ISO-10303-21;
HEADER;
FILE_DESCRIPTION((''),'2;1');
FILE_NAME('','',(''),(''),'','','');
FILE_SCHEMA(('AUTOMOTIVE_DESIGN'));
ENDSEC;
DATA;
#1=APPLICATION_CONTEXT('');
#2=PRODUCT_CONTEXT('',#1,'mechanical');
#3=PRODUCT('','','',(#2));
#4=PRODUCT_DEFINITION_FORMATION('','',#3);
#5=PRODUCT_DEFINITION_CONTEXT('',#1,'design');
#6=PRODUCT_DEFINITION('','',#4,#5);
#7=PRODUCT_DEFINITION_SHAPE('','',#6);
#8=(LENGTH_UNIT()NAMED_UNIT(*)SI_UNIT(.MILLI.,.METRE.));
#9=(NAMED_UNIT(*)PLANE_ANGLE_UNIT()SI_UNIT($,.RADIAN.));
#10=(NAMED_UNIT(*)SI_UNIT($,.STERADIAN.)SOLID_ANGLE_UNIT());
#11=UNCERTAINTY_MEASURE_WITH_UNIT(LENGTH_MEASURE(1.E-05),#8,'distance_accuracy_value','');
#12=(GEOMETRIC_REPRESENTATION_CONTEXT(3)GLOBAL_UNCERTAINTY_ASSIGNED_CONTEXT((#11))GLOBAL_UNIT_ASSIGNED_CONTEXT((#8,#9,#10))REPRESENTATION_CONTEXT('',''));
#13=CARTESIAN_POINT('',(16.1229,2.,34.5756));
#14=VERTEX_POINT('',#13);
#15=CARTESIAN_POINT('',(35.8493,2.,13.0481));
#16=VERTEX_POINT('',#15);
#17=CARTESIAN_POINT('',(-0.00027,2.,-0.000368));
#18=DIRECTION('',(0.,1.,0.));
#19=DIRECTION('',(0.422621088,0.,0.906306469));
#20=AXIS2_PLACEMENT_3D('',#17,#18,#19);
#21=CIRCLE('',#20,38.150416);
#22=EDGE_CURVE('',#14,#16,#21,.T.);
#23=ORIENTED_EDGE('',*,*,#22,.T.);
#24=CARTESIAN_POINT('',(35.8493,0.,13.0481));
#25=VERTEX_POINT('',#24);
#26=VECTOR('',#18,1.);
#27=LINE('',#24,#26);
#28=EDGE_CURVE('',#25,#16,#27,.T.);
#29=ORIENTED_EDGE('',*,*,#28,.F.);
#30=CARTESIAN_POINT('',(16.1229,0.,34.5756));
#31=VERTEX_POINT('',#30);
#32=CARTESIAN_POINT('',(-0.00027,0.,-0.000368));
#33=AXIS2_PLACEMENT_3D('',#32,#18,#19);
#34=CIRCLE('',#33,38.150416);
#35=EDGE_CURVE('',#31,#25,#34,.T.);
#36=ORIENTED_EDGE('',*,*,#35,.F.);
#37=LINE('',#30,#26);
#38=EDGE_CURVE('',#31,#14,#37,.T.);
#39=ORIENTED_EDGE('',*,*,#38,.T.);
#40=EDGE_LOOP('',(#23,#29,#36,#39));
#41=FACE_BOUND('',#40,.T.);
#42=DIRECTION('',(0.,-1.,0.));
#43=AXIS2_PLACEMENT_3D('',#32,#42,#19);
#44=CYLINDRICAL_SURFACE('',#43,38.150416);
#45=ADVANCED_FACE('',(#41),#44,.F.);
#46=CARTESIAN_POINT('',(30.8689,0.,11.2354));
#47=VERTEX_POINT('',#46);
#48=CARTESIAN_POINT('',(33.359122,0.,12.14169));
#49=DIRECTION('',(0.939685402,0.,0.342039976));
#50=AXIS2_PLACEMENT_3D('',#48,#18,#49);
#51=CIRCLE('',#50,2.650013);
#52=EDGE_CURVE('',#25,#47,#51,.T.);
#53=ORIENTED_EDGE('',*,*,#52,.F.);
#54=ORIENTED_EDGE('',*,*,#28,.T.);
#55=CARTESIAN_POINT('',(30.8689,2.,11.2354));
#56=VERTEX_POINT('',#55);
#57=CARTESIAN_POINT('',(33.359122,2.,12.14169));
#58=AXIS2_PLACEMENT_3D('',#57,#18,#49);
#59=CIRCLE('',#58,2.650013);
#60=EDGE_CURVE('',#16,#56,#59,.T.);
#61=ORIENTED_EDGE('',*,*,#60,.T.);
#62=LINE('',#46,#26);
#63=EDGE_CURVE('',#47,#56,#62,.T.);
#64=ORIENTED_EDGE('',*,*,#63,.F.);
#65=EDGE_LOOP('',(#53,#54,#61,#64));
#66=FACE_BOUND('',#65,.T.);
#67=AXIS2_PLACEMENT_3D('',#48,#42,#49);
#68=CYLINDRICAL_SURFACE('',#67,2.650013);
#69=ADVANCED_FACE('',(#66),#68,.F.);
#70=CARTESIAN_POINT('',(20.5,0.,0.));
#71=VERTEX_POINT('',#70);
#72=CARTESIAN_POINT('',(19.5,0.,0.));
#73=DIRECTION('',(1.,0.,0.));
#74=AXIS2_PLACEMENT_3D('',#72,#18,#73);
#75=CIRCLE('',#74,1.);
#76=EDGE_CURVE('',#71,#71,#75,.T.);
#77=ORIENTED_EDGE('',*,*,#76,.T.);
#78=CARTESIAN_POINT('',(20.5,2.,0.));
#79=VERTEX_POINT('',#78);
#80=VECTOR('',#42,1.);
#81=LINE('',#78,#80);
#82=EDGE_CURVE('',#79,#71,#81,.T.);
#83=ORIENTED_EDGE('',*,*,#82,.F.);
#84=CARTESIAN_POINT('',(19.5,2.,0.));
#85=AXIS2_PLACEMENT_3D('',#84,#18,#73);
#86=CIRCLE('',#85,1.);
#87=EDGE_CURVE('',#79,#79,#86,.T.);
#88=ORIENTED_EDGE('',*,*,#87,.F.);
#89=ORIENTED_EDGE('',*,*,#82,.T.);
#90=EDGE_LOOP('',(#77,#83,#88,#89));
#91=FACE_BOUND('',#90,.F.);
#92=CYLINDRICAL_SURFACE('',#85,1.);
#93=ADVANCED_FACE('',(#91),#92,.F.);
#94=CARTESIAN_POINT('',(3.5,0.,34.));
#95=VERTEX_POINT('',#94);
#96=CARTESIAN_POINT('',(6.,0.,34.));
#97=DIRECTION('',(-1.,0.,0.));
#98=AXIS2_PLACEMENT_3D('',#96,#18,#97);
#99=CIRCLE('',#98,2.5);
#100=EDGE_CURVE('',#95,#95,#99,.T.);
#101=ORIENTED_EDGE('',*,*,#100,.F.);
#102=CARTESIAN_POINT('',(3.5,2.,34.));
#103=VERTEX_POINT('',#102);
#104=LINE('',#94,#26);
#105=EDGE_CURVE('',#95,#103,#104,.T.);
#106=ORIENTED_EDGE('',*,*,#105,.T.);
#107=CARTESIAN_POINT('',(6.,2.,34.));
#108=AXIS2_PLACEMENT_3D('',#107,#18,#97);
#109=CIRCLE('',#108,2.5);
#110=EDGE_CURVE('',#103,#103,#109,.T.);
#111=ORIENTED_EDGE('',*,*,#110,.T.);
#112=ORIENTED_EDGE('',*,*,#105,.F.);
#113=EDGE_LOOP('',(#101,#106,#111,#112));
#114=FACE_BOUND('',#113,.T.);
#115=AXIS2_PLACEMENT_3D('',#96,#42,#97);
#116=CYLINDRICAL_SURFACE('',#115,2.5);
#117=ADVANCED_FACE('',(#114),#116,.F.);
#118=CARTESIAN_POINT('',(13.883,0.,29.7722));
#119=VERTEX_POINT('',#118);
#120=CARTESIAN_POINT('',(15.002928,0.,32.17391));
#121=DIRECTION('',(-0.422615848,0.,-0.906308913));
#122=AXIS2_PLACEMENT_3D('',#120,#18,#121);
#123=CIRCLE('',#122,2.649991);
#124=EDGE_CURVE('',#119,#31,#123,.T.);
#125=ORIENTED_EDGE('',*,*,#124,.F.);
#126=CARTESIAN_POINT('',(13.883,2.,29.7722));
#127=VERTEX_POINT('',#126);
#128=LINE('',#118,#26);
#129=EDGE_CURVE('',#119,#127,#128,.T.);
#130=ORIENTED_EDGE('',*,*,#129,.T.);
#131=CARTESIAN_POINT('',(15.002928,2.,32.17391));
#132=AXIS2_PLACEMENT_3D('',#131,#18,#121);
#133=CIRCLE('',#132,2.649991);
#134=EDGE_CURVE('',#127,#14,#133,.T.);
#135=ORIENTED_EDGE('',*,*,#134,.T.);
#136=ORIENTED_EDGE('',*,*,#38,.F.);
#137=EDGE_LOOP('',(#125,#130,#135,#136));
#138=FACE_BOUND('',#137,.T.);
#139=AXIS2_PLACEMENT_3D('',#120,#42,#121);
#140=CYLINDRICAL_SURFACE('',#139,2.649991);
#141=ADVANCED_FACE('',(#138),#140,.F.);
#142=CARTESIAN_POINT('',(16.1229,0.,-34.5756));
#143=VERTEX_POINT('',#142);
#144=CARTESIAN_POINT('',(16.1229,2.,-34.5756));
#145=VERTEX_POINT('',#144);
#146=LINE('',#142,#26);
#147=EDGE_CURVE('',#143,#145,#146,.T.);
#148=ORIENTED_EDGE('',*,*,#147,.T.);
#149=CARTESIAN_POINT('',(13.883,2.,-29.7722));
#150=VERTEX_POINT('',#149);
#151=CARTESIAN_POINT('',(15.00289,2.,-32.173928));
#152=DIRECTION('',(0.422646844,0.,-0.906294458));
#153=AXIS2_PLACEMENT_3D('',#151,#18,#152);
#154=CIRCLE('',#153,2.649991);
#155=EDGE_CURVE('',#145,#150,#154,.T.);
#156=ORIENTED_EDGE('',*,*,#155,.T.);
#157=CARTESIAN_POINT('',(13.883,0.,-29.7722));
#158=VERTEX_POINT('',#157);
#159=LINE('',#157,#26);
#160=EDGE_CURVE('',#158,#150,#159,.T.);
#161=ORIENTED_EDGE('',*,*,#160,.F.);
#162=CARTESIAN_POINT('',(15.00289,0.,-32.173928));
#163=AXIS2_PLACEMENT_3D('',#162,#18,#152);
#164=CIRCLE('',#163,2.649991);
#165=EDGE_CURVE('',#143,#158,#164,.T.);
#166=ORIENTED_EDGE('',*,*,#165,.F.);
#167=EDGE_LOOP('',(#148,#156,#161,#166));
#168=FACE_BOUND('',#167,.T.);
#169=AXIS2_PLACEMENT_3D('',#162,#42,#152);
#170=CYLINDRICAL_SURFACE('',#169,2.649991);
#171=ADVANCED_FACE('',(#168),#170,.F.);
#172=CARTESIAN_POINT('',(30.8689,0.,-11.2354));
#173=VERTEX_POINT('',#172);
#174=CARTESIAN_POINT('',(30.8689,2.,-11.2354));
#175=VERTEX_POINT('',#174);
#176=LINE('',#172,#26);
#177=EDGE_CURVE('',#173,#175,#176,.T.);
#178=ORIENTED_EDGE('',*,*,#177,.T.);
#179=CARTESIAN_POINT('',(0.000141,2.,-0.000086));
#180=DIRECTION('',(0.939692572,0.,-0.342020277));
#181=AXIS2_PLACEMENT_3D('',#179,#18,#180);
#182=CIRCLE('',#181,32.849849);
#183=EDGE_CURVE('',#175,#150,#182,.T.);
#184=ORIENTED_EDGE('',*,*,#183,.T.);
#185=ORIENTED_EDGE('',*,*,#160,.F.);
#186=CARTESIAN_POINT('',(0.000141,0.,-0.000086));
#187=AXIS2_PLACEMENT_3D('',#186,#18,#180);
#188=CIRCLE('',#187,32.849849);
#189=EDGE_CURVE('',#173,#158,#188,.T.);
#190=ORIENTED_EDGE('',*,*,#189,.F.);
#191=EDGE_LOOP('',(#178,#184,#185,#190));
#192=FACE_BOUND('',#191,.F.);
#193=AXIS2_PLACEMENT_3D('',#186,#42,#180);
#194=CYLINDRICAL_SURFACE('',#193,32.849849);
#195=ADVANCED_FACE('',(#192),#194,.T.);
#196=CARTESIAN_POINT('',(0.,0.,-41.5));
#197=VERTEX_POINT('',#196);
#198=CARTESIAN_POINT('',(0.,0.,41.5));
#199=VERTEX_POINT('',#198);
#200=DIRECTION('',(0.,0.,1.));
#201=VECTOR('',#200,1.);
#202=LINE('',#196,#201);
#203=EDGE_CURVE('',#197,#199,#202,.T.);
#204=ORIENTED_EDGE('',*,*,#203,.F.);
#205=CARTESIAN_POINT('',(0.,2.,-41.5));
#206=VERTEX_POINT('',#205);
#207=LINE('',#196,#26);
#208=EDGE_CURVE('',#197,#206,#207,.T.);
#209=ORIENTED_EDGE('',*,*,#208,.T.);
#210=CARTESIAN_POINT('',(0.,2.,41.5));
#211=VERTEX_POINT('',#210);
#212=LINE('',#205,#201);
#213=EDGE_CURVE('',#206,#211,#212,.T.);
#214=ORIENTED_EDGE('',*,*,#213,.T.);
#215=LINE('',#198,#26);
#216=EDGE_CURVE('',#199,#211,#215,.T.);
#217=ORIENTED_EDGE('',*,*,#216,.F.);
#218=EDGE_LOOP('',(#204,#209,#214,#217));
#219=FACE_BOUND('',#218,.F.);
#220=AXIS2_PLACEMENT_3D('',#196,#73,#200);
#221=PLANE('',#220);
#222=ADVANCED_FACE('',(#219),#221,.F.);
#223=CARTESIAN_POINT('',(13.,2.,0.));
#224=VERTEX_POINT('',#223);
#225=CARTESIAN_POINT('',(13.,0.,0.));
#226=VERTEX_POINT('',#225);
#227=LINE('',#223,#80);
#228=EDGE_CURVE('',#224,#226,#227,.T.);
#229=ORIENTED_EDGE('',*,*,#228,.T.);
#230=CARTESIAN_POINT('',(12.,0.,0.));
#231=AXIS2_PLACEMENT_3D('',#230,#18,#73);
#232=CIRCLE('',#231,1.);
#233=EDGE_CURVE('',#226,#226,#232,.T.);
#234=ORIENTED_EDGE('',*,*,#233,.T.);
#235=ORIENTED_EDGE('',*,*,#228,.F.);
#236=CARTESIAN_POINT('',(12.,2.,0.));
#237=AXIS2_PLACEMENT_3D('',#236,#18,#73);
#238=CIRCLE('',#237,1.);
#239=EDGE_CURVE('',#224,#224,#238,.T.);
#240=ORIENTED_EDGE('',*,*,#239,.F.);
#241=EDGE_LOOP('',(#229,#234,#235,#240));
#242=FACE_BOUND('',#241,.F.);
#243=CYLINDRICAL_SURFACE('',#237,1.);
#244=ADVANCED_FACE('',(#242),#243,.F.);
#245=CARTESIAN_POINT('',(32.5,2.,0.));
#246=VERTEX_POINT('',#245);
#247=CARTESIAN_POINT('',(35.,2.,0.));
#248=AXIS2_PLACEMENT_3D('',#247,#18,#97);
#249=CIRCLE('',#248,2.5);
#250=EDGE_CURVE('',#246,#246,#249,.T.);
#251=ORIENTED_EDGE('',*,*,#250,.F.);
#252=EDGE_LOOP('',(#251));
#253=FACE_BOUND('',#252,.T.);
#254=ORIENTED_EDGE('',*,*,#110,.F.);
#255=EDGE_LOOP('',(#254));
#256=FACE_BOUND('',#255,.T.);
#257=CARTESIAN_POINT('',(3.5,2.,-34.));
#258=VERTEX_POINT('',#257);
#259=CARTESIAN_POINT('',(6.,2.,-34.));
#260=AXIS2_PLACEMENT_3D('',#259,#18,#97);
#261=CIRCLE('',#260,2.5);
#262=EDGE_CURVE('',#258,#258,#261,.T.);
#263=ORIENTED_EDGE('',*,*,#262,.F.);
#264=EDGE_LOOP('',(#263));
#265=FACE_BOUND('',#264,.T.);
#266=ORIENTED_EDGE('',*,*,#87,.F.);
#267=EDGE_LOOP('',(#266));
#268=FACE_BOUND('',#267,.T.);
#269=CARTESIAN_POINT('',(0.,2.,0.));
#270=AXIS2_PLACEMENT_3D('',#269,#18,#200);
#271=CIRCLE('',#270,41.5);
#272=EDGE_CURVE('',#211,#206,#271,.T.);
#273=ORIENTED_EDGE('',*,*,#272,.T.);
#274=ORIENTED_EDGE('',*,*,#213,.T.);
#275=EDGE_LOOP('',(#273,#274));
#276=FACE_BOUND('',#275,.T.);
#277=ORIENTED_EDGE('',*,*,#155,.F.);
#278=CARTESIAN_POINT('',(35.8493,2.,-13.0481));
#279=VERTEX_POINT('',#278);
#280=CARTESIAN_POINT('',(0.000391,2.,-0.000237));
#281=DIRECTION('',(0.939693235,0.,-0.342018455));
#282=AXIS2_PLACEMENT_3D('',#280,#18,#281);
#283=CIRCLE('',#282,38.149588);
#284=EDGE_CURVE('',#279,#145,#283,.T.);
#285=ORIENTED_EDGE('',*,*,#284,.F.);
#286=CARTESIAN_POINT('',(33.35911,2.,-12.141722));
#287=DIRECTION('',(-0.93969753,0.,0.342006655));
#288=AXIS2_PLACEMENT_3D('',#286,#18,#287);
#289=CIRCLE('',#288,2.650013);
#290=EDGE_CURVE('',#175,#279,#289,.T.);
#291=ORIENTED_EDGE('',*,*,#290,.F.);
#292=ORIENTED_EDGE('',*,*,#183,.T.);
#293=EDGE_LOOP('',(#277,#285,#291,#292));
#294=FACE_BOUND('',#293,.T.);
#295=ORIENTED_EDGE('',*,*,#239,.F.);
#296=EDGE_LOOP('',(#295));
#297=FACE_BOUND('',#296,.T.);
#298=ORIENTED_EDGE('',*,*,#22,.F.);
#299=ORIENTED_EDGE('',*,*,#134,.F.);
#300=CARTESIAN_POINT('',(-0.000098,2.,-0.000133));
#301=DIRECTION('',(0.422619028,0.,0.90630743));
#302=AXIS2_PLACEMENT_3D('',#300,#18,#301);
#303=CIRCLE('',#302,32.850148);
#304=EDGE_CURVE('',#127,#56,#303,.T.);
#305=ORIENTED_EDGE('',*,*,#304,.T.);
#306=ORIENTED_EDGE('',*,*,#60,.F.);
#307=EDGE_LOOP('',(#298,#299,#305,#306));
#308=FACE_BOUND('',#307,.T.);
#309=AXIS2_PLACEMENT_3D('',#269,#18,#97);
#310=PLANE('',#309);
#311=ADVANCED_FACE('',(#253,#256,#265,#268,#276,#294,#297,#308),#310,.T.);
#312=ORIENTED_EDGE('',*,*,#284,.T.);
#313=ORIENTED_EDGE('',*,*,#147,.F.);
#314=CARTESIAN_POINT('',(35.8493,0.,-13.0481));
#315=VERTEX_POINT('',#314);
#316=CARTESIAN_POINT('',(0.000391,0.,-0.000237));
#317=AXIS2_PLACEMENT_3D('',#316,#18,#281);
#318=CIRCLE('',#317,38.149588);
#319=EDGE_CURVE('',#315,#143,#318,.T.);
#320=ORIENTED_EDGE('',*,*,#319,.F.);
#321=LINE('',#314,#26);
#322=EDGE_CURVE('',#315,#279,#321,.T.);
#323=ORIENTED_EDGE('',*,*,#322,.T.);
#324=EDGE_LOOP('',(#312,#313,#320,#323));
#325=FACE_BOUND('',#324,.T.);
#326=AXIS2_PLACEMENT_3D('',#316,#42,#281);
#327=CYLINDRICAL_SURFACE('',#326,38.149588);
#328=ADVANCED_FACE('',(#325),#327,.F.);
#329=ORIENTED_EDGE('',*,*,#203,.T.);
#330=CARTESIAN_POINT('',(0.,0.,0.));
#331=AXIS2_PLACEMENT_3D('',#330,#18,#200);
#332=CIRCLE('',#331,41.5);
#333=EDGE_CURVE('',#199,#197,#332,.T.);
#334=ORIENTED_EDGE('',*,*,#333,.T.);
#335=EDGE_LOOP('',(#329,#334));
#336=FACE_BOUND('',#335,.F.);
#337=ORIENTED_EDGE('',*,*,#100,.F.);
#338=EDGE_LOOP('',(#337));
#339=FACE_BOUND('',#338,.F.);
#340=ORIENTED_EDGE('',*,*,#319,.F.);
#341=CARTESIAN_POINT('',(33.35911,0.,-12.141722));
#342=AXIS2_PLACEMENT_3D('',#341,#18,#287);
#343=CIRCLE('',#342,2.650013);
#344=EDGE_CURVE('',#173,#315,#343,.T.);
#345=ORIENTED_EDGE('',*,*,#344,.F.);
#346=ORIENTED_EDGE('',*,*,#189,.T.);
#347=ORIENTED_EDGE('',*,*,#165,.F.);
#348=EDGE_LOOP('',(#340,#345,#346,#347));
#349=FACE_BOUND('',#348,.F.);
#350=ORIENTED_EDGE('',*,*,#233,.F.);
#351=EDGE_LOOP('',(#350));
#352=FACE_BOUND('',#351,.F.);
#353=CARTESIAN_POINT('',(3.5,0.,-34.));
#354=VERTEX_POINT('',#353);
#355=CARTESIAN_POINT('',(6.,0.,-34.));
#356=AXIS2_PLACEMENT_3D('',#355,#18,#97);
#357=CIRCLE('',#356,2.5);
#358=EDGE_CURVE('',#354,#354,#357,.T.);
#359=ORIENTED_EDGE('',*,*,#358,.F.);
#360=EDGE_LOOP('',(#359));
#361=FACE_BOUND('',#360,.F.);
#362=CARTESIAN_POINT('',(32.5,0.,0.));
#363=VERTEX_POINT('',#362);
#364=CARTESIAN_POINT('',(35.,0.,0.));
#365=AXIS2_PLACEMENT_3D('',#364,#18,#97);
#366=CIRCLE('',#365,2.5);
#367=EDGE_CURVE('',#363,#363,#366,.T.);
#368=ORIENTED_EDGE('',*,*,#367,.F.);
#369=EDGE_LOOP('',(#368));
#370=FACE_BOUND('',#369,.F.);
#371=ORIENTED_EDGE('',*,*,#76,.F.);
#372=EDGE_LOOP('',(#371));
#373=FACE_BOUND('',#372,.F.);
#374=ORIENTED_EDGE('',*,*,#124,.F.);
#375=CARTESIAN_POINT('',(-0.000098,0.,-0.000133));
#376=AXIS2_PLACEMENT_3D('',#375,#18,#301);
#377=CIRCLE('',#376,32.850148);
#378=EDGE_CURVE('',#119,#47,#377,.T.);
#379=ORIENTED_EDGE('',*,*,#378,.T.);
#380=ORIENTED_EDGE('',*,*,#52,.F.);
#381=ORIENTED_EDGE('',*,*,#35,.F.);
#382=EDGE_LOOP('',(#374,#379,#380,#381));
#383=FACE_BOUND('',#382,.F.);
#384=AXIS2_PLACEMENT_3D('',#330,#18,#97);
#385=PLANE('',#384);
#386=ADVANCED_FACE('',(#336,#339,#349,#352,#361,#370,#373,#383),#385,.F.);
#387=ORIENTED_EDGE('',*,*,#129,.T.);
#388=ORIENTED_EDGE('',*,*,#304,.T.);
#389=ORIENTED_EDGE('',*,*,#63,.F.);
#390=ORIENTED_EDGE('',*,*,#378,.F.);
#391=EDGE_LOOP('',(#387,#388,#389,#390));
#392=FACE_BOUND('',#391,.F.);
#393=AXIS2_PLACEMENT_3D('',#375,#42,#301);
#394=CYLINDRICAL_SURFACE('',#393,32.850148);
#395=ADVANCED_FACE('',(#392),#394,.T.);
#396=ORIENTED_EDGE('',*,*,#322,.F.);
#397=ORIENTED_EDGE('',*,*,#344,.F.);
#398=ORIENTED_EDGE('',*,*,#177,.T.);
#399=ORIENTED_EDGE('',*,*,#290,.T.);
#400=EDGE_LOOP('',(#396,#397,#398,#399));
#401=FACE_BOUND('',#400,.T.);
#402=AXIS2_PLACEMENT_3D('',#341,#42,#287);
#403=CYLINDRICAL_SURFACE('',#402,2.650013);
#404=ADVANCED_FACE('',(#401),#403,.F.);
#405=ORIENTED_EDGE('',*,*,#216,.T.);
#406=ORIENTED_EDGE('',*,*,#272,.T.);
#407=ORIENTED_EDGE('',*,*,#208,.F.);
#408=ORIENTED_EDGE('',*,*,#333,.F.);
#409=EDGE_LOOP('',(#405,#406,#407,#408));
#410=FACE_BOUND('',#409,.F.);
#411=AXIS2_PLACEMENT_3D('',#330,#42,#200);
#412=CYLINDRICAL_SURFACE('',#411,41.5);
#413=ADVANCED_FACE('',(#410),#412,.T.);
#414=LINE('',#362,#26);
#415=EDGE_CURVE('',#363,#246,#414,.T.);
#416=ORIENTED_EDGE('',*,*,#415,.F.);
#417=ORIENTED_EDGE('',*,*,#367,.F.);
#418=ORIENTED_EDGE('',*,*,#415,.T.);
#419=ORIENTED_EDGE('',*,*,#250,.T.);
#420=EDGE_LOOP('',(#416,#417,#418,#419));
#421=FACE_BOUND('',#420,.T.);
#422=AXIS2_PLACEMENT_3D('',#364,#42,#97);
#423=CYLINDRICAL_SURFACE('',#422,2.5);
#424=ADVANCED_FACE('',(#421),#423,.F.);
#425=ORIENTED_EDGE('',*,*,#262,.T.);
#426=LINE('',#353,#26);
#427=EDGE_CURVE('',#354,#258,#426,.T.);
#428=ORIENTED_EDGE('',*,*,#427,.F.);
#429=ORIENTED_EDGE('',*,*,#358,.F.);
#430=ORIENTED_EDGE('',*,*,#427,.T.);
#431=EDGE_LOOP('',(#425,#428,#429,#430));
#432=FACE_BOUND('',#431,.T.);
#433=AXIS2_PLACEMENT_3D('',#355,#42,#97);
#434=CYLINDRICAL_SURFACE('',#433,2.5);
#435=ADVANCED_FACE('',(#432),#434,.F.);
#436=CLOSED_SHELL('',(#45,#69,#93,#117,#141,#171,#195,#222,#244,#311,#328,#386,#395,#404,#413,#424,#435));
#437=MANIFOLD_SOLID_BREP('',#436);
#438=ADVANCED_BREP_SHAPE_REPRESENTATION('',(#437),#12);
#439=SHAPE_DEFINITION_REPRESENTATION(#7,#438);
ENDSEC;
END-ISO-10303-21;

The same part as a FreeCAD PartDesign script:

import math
import FreeCAD as App
import Part
import Sketcher

doc = App.newDocument("Part")
body = doc.addObject("PartDesign::Body", "Body")

sketch1 = body.newObject("Sketcher::SketchObject", "Sketch")
sketch1.AttachmentSupport = (doc.getObject("XZ_Plane"), [""])
sketch1.MapMode = "FlatFace"
sketch1.addGeometry(Part.ArcOfCircle(Part.Circle(App.Vector(0, 0, 0), App.Vector(0, 0, 1), 41.5), math.radians(-90), math.radians(90)), False)
sketch1.addGeometry(Part.LineSegment(App.Vector(0, -41.5, 0), App.Vector(0, 41.5, 0)), False)
sketch1.addGeometry(Part.ArcOfCircle(Part.Circle(App.Vector(0, 0, 0), App.Vector(0, 0, 1), 38.149967), math.radians(-64.999955), math.radians(-20.000031)), False)
sketch1.addGeometry(Part.ArcOfCircle(Part.Circle(App.Vector(33.3591, -12.1417, 0), App.Vector(0, 0, 1), 2.649995), math.radians(-20.00084), math.radians(160.001192)), False)
sketch1.addGeometry(Part.ArcOfCircle(Part.Circle(App.Vector(0, 0, 0), App.Vector(0, 0, 1), 32.849986), math.radians(-65.000008), math.radians(-20.000064)), False)
sketch1.addGeometry(Part.ArcOfCircle(Part.Circle(App.Vector(15.0029, -32.1739, 0), App.Vector(0, 0, 1), 2.650012), math.radians(114.999391), math.radians(295.00135)), False)
sketch1.addGeometry(Part.Circle(App.Vector(6, -34, 0), App.Vector(0, 0, 1), 2.5), False)
sketch1.addGeometry(Part.Circle(App.Vector(35, 0, 0), App.Vector(0, 0, 1), 2.5), False)
sketch1.addGeometry(Part.ArcOfCircle(Part.Circle(App.Vector(0, 0, 0), App.Vector(0, 0, 1), 38.150036), math.radians(20.000031), math.radians(64.999955)), False)
sketch1.addGeometry(Part.ArcOfCircle(Part.Circle(App.Vector(15.0029, 32.1739, 0), App.Vector(0, 0, 1), 2.64997), math.radians(64.99865), math.radians(245.000609)), False)
sketch1.addGeometry(Part.ArcOfCircle(Part.Circle(App.Vector(0, 0, 0), App.Vector(0, 0, 1), 32.850011), math.radians(20.000064), math.radians(65.000008)), False)
sketch1.addGeometry(Part.ArcOfCircle(Part.Circle(App.Vector(33.3591, 12.1417, 0), App.Vector(0, 0, 1), 2.65003), math.radians(-160.001192), math.radians(20.00084)), False)
sketch1.addGeometry(Part.Circle(App.Vector(6, 34, 0), App.Vector(0, 0, 1), 2.5), False)
sketch1.addConstraint(Sketcher.Constraint("Coincident", 0, 1, 1, 1))
sketch1.addConstraint(Sketcher.Constraint("Coincident", 1, 2, 0, 2))
sketch1.addConstraint(Sketcher.Constraint("Tangent", 2, 2, 3, 1))
sketch1.addConstraint(Sketcher.Constraint("Tangent", 3, 2, 4, 2))
sketch1.addConstraint(Sketcher.Constraint("Tangent", 4, 1, 5, 1))
sketch1.addConstraint(Sketcher.Constraint("Tangent", 5, 2, 2, 1))
sketch1.addConstraint(Sketcher.Constraint("Tangent", 8, 2, 9, 1))
sketch1.addConstraint(Sketcher.Constraint("Tangent", 9, 2, 10, 2))
sketch1.addConstraint(Sketcher.Constraint("Tangent", 10, 1, 11, 1))
sketch1.addConstraint(Sketcher.Constraint("Tangent", 11, 2, 8, 1))
sketch1.addConstraint(Sketcher.Constraint("Vertical", 1))
sketch1.addConstraint(Sketcher.Constraint("Coincident", 0, 3, -1, 1))
sketch1.addConstraint(Sketcher.Constraint("Coincident", 2, 3, -1, 1))
sketch1.addConstraint(Sketcher.Constraint("Coincident", 4, 3, -1, 1))
sketch1.addConstraint(Sketcher.Constraint("Coincident", 8, 3, -1, 1))
sketch1.addConstraint(Sketcher.Constraint("Coincident", 10, 3, -1, 1))
sketch1.addConstraint(Sketcher.Constraint("Equal", 6, 7))
sketch1.addConstraint(Sketcher.Constraint("Equal", 2, 8))
sketch1.addConstraint(Sketcher.Constraint("Equal", 5, 9))
sketch1.addConstraint(Sketcher.Constraint("Equal", 7, 12))
sketch1.addConstraint(Sketcher.Constraint("Symmetric", 6, 3, 12, 3, -1))
sketch1.addConstraint(Sketcher.Constraint("PointOnObject", 7, 3, -1))
sketch1.addConstraint(Sketcher.Constraint("PointOnObject", 0, 1, -2))
sketch1.addConstraint(Sketcher.Constraint("Vertical", 5, 3, 9, 3))
sketch1.addConstraint(Sketcher.Constraint("Vertical", 3, 3, 11, 3))
sketch1.addConstraint(Sketcher.Constraint("Diameter", 6, 5.0))
sketch1.addConstraint(Sketcher.Constraint("Radius", 0, 41.5))
sketch1.addConstraint(Sketcher.Constraint("Radius", 3, 2.65))
sketch1.addConstraint(Sketcher.Constraint("DistanceX", -1, 1, 6, 3, 6.0))
sketch1.addConstraint(Sketcher.Constraint("DistanceY", 6, 3, -1, 1, 34.0))
sketch1.addConstraint(Sketcher.Constraint("DistanceX", -1, 1, 7, 3, 35.0))
sketch1.addConstraint(Sketcher.Constraint("Radius", 2, 38.15))
sketch1.addConstraint(Sketcher.Constraint("DistanceX", 5, 3, 5, 2, 1.12))
sketch1.addConstraint(Sketcher.Constraint("DistanceX", -1, 1, 3, 3, 33.359))
pad1 = body.newObject("PartDesign::Pad", "Pad")
pad1.Profile = sketch1
pad1.Length = 2
pad1.Reversed = True

sketch2 = body.newObject("Sketcher::SketchObject", "Sketch001")
sketch2.AttachmentSupport = (doc.getObject("XZ_Plane"), [""])
sketch2.MapMode = "FlatFace"
sketch2.AttachmentOffset = App.Placement(App.Vector(0, 0, -2), App.Rotation())
sketch2.addGeometry(Part.Circle(App.Vector(12, 0, 0), App.Vector(0, 0, 1), 1), False)
sketch2.addGeometry(Part.Circle(App.Vector(19.5, 0, 0), App.Vector(0, 0, 1), 1), False)
sketch2.addConstraint(Sketcher.Constraint("Equal", 0, 1))
sketch2.addConstraint(Sketcher.Constraint("PointOnObject", 0, 3, -1))
sketch2.addConstraint(Sketcher.Constraint("PointOnObject", 1, 3, -1))
sketch2.addConstraint(Sketcher.Constraint("Diameter", 0, 2.0))
sketch2.addConstraint(Sketcher.Constraint("DistanceX", -1, 1, 0, 3, 12.0))
sketch2.addConstraint(Sketcher.Constraint("DistanceX", 0, 3, 1, 3, 7.5))
pocket1 = body.newObject("PartDesign::Pocket", "Pocket")
pocket1.Profile = sketch2
pocket1.Type = "ThroughAll"
pocket1.Reversed = True

doc.recompute()
